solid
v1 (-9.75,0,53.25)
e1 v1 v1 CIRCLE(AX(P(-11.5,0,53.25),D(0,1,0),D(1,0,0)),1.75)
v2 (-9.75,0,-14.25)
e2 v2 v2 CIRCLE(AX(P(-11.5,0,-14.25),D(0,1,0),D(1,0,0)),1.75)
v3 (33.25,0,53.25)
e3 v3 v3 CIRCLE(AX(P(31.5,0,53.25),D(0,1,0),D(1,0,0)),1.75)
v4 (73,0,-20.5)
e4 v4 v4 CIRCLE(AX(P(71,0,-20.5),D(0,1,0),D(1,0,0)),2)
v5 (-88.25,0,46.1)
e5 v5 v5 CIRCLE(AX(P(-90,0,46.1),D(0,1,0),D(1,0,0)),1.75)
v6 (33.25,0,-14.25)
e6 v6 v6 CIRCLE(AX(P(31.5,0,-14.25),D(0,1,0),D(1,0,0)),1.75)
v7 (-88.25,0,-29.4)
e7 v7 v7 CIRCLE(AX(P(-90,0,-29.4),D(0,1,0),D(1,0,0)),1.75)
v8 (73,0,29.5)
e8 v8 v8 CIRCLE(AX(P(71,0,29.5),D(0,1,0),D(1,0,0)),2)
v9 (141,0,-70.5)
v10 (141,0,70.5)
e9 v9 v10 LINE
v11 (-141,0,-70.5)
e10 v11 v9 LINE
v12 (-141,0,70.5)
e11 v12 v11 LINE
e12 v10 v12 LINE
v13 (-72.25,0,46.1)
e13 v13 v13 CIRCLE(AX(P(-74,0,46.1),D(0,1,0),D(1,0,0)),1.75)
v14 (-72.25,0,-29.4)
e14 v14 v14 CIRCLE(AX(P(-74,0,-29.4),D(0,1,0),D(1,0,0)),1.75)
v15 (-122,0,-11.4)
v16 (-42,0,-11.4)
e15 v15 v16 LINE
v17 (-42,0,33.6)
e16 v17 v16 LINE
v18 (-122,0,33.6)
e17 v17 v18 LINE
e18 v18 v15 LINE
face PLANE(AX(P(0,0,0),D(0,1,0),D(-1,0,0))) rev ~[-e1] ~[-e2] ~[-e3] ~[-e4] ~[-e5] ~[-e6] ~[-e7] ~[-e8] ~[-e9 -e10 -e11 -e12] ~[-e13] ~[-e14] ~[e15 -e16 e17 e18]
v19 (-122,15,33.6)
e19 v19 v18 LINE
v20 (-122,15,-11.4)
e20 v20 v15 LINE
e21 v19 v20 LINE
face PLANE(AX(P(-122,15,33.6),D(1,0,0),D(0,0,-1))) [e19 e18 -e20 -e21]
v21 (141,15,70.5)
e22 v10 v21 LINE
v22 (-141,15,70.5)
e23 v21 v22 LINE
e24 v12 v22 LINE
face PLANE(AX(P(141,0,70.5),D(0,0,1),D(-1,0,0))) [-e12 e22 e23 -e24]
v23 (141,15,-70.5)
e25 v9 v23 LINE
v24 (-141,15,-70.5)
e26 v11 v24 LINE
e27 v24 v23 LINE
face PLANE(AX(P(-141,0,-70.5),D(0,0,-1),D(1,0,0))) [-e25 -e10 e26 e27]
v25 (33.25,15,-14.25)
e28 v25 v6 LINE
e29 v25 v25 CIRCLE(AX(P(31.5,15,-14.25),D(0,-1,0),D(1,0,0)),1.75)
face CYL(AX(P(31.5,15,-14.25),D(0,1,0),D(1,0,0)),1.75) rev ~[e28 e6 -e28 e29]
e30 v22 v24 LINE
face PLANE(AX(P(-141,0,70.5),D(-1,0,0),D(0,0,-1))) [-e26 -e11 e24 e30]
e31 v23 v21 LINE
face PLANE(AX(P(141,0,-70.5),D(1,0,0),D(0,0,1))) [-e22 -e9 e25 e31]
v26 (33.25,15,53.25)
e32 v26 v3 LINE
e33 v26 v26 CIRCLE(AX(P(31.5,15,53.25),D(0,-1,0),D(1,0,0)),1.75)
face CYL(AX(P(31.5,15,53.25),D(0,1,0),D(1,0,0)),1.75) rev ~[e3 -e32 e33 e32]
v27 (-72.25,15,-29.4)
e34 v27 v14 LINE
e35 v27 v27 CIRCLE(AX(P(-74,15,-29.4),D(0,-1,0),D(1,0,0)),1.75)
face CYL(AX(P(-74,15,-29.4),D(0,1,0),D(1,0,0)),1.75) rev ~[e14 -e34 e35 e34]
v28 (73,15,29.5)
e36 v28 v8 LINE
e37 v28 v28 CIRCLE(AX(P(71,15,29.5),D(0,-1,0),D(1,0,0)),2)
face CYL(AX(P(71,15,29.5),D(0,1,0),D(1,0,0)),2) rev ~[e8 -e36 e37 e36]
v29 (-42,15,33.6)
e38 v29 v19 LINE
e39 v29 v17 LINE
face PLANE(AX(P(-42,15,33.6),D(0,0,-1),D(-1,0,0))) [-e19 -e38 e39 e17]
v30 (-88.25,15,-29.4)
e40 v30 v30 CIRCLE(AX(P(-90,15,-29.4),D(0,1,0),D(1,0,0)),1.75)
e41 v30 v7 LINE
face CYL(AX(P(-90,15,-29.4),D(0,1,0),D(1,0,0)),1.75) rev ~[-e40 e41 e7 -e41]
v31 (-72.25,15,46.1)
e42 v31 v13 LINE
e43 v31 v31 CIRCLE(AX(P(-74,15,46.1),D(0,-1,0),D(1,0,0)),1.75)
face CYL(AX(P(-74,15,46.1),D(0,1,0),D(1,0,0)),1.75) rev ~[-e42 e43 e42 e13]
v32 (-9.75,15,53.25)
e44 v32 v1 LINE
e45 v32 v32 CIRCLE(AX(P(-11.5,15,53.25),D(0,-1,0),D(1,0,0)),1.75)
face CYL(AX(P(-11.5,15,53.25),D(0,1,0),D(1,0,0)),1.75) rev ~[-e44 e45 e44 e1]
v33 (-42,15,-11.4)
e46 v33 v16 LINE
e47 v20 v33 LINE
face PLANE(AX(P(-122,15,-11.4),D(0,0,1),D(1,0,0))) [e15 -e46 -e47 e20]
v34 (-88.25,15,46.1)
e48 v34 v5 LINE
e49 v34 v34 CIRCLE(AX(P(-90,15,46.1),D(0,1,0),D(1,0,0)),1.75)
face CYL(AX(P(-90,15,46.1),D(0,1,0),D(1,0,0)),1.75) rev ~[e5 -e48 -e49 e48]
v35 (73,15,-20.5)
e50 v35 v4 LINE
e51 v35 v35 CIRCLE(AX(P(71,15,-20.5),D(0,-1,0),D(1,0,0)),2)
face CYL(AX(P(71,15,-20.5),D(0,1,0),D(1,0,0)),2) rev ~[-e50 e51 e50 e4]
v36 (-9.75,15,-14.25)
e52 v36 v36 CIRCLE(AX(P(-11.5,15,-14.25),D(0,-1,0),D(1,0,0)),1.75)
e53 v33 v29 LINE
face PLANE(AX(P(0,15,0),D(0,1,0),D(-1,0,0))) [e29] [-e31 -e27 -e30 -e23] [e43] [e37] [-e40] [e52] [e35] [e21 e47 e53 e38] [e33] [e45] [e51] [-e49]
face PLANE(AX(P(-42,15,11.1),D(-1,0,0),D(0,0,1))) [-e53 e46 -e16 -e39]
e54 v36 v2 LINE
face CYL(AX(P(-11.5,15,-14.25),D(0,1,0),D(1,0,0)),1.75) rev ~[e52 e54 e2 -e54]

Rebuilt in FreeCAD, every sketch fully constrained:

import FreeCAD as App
import Part
import Sketcher
Q = App.Units.Quantity


def add_polygon(sketch, points):
    """Adds a closed chain of lines whose ends are joined by coincident constraints."""
    first, n = sketch.GeometryCount, len(points)
    for a, b in zip(points, points[1:] + points[:1]):
        sketch.addGeometry(Part.LineSegment(App.Vector(*a, 0), App.Vector(*b, 0)), False)
    for i in range(n):
        sketch.addConstraint(Sketcher.Constraint("Coincident", first + i, 2, first + (i + 1) % n, 1))

doc = App.newDocument("Part")
params = doc.addObject("Spreadsheet::Sheet", "Params")
for row, (alias, value) in enumerate([
    ("sketch1_width", "282 mm"),
    ("sketch1_height", "141 mm"),
    ("pad1_length", "15 mm"),
    ("sketch2_width", "80 mm"),
    ("sketch2_height", "45 mm"),
    ("pocket1_length", "15 mm"),
    ("sketch3_diameter", "3.5 mm"),
    ("pocket2_length", "15 mm"),
    ("sketch4_diameter", "3.5 mm"),
    ("pocket3_length", "15 mm"),
    ("sketch5_diameter", "4 mm"),
    ("pocket4_length", "15 mm"),
], start=1):
    params.set(f"A{row}", alias)
    params.set(f"B{row}", "=" + value)
    params.setAlias(f"B{row}", alias)

body = doc.addObject("PartDesign::Body", "Body")

sketch1 = body.newObject("Sketcher::SketchObject", "Sketch")
sketch1.AttachmentSupport = (doc.getObject("XZ_Plane"), [""])
sketch1.MapMode = "FlatFace"
add_polygon(sketch1, [(141, -70.5), (-141, -70.5), (-141, 70.5), (141, 70.5)])
sketch1.addConstraint([
    Sketcher.Constraint("Horizontal", 0),
    Sketcher.Constraint("Vertical", 1),
    Sketcher.Constraint("Horizontal", 2),
    Sketcher.Constraint("Vertical", 3),
    Sketcher.Constraint("Symmetric", 0, 2, 2, 2, -1, 1),
    Sketcher.Constraint("DistanceX", 0, 2, 0, 1, Q("282 mm")),
    Sketcher.Constraint("DistanceY", 1, 1, 1, 2, Q("141 mm")),
])
sketch1.setExpression("Constraints[9]", "Params.sketch1_width")
sketch1.setExpression("Constraints[10]", "Params.sketch1_height")
pad1 = body.newObject("PartDesign::Pad", "Pad")
pad1.Profile = sketch1
pad1.setExpression("Length", "Params.pad1_length")
pad1.Reversed = True

sketch2 = body.newObject("Sketcher::SketchObject", "Sketch001")
sketch2.AttachmentSupport = (doc.getObject("XZ_Plane"), [""])
sketch2.MapMode = "FlatFace"
sketch2.AttachmentOffset = App.Placement(App.Vector(0, 0, -15), App.Rotation())
add_polygon(sketch2, [(-42, -11.4), (-122, -11.4), (-122, 33.6), (-42, 33.6)])
sketch2.addConstraint([
    Sketcher.Constraint("Horizontal", 0),
    Sketcher.Constraint("Vertical", 1),
    Sketcher.Constraint("Horizontal", 2),
    Sketcher.Constraint("Vertical", 3),
    Sketcher.Constraint("DistanceX", 0, 2, 0, 1, Q("80 mm")),
    Sketcher.Constraint("DistanceY", 1, 1, 1, 2, Q("45 mm")),
    Sketcher.Constraint("DistanceX", 0, 2, -1, 1, Q("122 mm")),
    Sketcher.Constraint("DistanceY", 0, 2, -1, 1, Q("11.4 mm")),
])
sketch2.setExpression("Constraints[8]", "Params.sketch2_width")
sketch2.setExpression("Constraints[9]", "Params.sketch2_height")
pocket1 = body.newObject("PartDesign::Pocket", "Pocket")
pocket1.Profile = sketch2
pocket1.setExpression("Length", "Params.pocket1_length")
pocket1.Reversed = True

sketch3 = body.newObject("Sketcher::SketchObject", "Sketch002")
sketch3.AttachmentSupport = (doc.getObject("XZ_Plane"), [""])
sketch3.MapMode = "FlatFace"
sketch3.AttachmentOffset = App.Placement(App.Vector(0, 0, -15), App.Rotation())
sketch3.addGeometry([
    Part.Circle(App.Vector(-74, -29.4, 0), App.Vector(0, 0, 1), 1.75),
    Part.Circle(App.Vector(-90, -29.4, 0), App.Vector(0, 0, 1), 1.75),
    Part.Circle(App.Vector(-74, 46.1, 0), App.Vector(0, 0, 1), 1.75),
    Part.Circle(App.Vector(-90, 46.1, 0), App.Vector(0, 0, 1), 1.75),
], False)
sketch3.addConstraint([
    Sketcher.Constraint("Equal", 0, 1),
    Sketcher.Constraint("Equal", 1, 2),
    Sketcher.Constraint("Equal", 2, 3),
    Sketcher.Constraint("Horizontal", 0, 3, 1, 3),
    Sketcher.Constraint("Horizontal", 2, 3, 3, 3),
    Sketcher.Constraint("Vertical", 0, 3, 2, 3),
    Sketcher.Constraint("Vertical", 1, 3, 3, 3),
    Sketcher.Constraint("Diameter", 0, Q("3.5 mm")),
    Sketcher.Constraint("DistanceX", 0, 3, -1, 1, Q("74 mm")),
    Sketcher.Constraint("DistanceX", 1, 3, -1, 1, Q("90 mm")),
    Sketcher.Constraint("DistanceY", 0, 3, -1, 1, Q("29.4 mm")),
    Sketcher.Constraint("DistanceY", -1, 1, 2, 3, Q("46.1 mm")),
])
sketch3.setExpression("Constraints[7]", "Params.sketch3_diameter")
pocket2 = body.newObject("PartDesign::Pocket", "Pocket001")
pocket2.Profile = sketch3
pocket2.setExpression("Length", "Params.pocket2_length")
pocket2.Reversed = True

sketch4 = body.newObject("Sketcher::SketchObject", "Sketch003")
sketch4.AttachmentSupport = (doc.getObject("XZ_Plane"), [""])
sketch4.MapMode = "FlatFace"
sketch4.AttachmentOffset = App.Placement(App.Vector(0, 0, -15), App.Rotation())
sketch4.addGeometry([
    Part.Circle(App.Vector(-11.5, 53.25, 0), App.Vector(0, 0, 1), 1.75),
    Part.Circle(App.Vector(31.5, 53.25, 0), App.Vector(0, 0, 1), 1.75),
    Part.Circle(App.Vector(31.5, -14.25, 0), App.Vector(0, 0, 1), 1.75),
    Part.Circle(App.Vector(-11.5, -14.25, 0), App.Vector(0, 0, 1), 1.75),
], False)
sketch4.addConstraint([
    Sketcher.Constraint("Equal", 0, 1),
    Sketcher.Constraint("Equal", 1, 2),
    Sketcher.Constraint("Equal", 2, 3),
    Sketcher.Constraint("Horizontal", 0, 3, 1, 3),
    Sketcher.Constraint("Horizontal", 2, 3, 3, 3),
    Sketcher.Constraint("Vertical", 1, 3, 2, 3),
    Sketcher.Constraint("Vertical", 0, 3, 3, 3),
    Sketcher.Constraint("Diameter", 0, Q("3.5 mm")),
    Sketcher.Constraint("DistanceX", 0, 3, 1, 3, Q("43 mm")),
    Sketcher.Constraint("DistanceX", 0, 3, -1, 1, Q("11.5 mm")),
    Sketcher.Constraint("DistanceY", 2, 3, 1, 3, Q("67.5 mm")),
    Sketcher.Constraint("DistanceY", -1, 1, 0, 3, Q("53.25 mm")),
])
sketch4.setExpression("Constraints[7]", "Params.sketch4_diameter")
pocket3 = body.newObject("PartDesign::Pocket", "Pocket002")
pocket3.Profile = sketch4
pocket3.setExpression("Length", "Params.pocket3_length")
pocket3.Reversed = True

sketch5 = body.newObject("Sketcher::SketchObject", "Sketch004")
sketch5.AttachmentSupport = (doc.getObject("XZ_Plane"), [""])
sketch5.MapMode = "FlatFace"
sketch5.AttachmentOffset = App.Placement(App.Vector(0, 0, -15), App.Rotation())
sketch5.addGeometry([
    Part.Circle(App.Vector(71, -20.5, 0), App.Vector(0, 0, 1), 2),
    Part.Circle(App.Vector(71, 29.5, 0), App.Vector(0, 0, 1), 2),
], False)
sketch5.addConstraint([
    Sketcher.Constraint("Equal", 0, 1),
    Sketcher.Constraint("Vertical", 0, 3, 1, 3),
    Sketcher.Constraint("Diameter", 0, Q("4 mm")),
    Sketcher.Constraint("DistanceY", 0, 3, 1, 3, Q("50 mm")),
    Sketcher.Constraint("DistanceX", -1, 1, 0, 3, Q("71 mm")),
    Sketcher.Constraint("DistanceY", 0, 3, -1, 1, Q("20.5 mm")),
])
sketch5.setExpression("Constraints[2]", "Params.sketch5_diameter")
pocket4 = body.newObject("PartDesign::Pocket", "Pocket003")
pocket4.Profile = sketch5
pocket4.setExpression("Length", "Params.pocket4_length")
pocket4.Reversed = True

doc.recompute()
